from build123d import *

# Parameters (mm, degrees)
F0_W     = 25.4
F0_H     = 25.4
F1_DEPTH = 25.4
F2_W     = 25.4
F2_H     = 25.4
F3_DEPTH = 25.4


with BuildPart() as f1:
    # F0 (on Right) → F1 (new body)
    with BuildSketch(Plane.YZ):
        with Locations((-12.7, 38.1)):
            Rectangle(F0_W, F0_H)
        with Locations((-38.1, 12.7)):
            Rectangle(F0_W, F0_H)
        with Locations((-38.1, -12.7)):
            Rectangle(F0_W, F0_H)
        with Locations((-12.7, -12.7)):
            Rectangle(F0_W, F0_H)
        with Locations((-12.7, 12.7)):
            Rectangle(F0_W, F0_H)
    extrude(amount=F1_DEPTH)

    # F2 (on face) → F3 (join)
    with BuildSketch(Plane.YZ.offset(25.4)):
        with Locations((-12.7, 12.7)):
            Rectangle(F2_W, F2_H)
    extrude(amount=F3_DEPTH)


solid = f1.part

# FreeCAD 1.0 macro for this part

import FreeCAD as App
import Part
import Sketcher
Q = App.Units.Quantity


def add_polygon(sketch, points):
    """Adds a closed chain of lines whose ends are joined by coincident constraints."""
    first, n = sketch.GeometryCount, len(points)
    for a, b in zip(points, points[1:] + points[:1]):
        sketch.addGeometry(Part.LineSegment(App.Vector(*a, 0), App.Vector(*b, 0)), False)
    for i in range(n):
        sketch.addConstraint(Sketcher.Constraint("Coincident", first + i, 2, first + (i + 1) % n, 1))

doc = App.newDocument("Part")
body = doc.addObject("PartDesign::Body", "Body")

sketch1 = doc.addObject("Sketcher::SketchObject", "Sketch")
body.addObject(sketch1)
sketch1.AttachmentSupport = (doc.YZ_Plane, [""])
sketch1.MapMode = "FlatFace"
add_polygon(sketch1, [(-25, 51), (-25, 25), (-51, 25), (-51, -25), (0, -25), (0, 51)])
sketch1.addConstraint([
    Sketcher.Constraint("Vertical", 0),
    Sketcher.Constraint("Horizontal", 1),
    Sketcher.Constraint("Vertical", 2),
    Sketcher.Constraint("Horizontal", 3),
    Sketcher.Constraint("Vertical", 4),
    Sketcher.Constraint("Horizontal", 5),
    Sketcher.Constraint("PointOnObject", 3, 2, -2),
    Sketcher.Constraint("Equal", 1, 5),
    Sketcher.Constraint("Equal", 5, 0),
    Sketcher.Constraint("Equal", 3, 2),
    Sketcher.Constraint("DistanceX", 1, 2, 1, 1, Q("1 in")),
    Sketcher.Constraint("DistanceY", -1, 1, 0, 2, Q("1 in")),
])
pad1 = doc.addObject("PartDesign::Pad", "Pad")
body.addObject(pad1)
pad1.Profile = sketch1
pad1.Length = Q("1 in")

sketch2 = doc.addObject("Sketcher::SketchObject", "Sketch001")
body.addObject(sketch2)
sketch2.AttachmentSupport = (doc.YZ_Plane, [""])
sketch2.MapMode = "FlatFace"
sketch2.AttachmentOffset = App.Placement(App.Vector(0, 0, 1 * 25.4), App.Rotation())
add_polygon(sketch2, [(-25, 25), (-25, 0), (0, 0), (0, 25)])
sketch2.addConstraint([
    Sketcher.Constraint("Vertical", 0),
    Sketcher.Constraint("Horizontal", 1),
    Sketcher.Constraint("Vertical", 2),
    Sketcher.Constraint("Horizontal", 3),
    Sketcher.Constraint("Coincident", 1, 2, -1, 1),
    Sketcher.Constraint("Equal", 3, 0),
    Sketcher.Constraint("DistanceX", 1, 1, 1, 2, Q("1 in")),
])
pad2 = doc.addObject("PartDesign::Pad", "Pad001")
body.addObject(pad2)
pad2.Profile = sketch2
pad2.Length = Q("1 in")

doc.recompute()
